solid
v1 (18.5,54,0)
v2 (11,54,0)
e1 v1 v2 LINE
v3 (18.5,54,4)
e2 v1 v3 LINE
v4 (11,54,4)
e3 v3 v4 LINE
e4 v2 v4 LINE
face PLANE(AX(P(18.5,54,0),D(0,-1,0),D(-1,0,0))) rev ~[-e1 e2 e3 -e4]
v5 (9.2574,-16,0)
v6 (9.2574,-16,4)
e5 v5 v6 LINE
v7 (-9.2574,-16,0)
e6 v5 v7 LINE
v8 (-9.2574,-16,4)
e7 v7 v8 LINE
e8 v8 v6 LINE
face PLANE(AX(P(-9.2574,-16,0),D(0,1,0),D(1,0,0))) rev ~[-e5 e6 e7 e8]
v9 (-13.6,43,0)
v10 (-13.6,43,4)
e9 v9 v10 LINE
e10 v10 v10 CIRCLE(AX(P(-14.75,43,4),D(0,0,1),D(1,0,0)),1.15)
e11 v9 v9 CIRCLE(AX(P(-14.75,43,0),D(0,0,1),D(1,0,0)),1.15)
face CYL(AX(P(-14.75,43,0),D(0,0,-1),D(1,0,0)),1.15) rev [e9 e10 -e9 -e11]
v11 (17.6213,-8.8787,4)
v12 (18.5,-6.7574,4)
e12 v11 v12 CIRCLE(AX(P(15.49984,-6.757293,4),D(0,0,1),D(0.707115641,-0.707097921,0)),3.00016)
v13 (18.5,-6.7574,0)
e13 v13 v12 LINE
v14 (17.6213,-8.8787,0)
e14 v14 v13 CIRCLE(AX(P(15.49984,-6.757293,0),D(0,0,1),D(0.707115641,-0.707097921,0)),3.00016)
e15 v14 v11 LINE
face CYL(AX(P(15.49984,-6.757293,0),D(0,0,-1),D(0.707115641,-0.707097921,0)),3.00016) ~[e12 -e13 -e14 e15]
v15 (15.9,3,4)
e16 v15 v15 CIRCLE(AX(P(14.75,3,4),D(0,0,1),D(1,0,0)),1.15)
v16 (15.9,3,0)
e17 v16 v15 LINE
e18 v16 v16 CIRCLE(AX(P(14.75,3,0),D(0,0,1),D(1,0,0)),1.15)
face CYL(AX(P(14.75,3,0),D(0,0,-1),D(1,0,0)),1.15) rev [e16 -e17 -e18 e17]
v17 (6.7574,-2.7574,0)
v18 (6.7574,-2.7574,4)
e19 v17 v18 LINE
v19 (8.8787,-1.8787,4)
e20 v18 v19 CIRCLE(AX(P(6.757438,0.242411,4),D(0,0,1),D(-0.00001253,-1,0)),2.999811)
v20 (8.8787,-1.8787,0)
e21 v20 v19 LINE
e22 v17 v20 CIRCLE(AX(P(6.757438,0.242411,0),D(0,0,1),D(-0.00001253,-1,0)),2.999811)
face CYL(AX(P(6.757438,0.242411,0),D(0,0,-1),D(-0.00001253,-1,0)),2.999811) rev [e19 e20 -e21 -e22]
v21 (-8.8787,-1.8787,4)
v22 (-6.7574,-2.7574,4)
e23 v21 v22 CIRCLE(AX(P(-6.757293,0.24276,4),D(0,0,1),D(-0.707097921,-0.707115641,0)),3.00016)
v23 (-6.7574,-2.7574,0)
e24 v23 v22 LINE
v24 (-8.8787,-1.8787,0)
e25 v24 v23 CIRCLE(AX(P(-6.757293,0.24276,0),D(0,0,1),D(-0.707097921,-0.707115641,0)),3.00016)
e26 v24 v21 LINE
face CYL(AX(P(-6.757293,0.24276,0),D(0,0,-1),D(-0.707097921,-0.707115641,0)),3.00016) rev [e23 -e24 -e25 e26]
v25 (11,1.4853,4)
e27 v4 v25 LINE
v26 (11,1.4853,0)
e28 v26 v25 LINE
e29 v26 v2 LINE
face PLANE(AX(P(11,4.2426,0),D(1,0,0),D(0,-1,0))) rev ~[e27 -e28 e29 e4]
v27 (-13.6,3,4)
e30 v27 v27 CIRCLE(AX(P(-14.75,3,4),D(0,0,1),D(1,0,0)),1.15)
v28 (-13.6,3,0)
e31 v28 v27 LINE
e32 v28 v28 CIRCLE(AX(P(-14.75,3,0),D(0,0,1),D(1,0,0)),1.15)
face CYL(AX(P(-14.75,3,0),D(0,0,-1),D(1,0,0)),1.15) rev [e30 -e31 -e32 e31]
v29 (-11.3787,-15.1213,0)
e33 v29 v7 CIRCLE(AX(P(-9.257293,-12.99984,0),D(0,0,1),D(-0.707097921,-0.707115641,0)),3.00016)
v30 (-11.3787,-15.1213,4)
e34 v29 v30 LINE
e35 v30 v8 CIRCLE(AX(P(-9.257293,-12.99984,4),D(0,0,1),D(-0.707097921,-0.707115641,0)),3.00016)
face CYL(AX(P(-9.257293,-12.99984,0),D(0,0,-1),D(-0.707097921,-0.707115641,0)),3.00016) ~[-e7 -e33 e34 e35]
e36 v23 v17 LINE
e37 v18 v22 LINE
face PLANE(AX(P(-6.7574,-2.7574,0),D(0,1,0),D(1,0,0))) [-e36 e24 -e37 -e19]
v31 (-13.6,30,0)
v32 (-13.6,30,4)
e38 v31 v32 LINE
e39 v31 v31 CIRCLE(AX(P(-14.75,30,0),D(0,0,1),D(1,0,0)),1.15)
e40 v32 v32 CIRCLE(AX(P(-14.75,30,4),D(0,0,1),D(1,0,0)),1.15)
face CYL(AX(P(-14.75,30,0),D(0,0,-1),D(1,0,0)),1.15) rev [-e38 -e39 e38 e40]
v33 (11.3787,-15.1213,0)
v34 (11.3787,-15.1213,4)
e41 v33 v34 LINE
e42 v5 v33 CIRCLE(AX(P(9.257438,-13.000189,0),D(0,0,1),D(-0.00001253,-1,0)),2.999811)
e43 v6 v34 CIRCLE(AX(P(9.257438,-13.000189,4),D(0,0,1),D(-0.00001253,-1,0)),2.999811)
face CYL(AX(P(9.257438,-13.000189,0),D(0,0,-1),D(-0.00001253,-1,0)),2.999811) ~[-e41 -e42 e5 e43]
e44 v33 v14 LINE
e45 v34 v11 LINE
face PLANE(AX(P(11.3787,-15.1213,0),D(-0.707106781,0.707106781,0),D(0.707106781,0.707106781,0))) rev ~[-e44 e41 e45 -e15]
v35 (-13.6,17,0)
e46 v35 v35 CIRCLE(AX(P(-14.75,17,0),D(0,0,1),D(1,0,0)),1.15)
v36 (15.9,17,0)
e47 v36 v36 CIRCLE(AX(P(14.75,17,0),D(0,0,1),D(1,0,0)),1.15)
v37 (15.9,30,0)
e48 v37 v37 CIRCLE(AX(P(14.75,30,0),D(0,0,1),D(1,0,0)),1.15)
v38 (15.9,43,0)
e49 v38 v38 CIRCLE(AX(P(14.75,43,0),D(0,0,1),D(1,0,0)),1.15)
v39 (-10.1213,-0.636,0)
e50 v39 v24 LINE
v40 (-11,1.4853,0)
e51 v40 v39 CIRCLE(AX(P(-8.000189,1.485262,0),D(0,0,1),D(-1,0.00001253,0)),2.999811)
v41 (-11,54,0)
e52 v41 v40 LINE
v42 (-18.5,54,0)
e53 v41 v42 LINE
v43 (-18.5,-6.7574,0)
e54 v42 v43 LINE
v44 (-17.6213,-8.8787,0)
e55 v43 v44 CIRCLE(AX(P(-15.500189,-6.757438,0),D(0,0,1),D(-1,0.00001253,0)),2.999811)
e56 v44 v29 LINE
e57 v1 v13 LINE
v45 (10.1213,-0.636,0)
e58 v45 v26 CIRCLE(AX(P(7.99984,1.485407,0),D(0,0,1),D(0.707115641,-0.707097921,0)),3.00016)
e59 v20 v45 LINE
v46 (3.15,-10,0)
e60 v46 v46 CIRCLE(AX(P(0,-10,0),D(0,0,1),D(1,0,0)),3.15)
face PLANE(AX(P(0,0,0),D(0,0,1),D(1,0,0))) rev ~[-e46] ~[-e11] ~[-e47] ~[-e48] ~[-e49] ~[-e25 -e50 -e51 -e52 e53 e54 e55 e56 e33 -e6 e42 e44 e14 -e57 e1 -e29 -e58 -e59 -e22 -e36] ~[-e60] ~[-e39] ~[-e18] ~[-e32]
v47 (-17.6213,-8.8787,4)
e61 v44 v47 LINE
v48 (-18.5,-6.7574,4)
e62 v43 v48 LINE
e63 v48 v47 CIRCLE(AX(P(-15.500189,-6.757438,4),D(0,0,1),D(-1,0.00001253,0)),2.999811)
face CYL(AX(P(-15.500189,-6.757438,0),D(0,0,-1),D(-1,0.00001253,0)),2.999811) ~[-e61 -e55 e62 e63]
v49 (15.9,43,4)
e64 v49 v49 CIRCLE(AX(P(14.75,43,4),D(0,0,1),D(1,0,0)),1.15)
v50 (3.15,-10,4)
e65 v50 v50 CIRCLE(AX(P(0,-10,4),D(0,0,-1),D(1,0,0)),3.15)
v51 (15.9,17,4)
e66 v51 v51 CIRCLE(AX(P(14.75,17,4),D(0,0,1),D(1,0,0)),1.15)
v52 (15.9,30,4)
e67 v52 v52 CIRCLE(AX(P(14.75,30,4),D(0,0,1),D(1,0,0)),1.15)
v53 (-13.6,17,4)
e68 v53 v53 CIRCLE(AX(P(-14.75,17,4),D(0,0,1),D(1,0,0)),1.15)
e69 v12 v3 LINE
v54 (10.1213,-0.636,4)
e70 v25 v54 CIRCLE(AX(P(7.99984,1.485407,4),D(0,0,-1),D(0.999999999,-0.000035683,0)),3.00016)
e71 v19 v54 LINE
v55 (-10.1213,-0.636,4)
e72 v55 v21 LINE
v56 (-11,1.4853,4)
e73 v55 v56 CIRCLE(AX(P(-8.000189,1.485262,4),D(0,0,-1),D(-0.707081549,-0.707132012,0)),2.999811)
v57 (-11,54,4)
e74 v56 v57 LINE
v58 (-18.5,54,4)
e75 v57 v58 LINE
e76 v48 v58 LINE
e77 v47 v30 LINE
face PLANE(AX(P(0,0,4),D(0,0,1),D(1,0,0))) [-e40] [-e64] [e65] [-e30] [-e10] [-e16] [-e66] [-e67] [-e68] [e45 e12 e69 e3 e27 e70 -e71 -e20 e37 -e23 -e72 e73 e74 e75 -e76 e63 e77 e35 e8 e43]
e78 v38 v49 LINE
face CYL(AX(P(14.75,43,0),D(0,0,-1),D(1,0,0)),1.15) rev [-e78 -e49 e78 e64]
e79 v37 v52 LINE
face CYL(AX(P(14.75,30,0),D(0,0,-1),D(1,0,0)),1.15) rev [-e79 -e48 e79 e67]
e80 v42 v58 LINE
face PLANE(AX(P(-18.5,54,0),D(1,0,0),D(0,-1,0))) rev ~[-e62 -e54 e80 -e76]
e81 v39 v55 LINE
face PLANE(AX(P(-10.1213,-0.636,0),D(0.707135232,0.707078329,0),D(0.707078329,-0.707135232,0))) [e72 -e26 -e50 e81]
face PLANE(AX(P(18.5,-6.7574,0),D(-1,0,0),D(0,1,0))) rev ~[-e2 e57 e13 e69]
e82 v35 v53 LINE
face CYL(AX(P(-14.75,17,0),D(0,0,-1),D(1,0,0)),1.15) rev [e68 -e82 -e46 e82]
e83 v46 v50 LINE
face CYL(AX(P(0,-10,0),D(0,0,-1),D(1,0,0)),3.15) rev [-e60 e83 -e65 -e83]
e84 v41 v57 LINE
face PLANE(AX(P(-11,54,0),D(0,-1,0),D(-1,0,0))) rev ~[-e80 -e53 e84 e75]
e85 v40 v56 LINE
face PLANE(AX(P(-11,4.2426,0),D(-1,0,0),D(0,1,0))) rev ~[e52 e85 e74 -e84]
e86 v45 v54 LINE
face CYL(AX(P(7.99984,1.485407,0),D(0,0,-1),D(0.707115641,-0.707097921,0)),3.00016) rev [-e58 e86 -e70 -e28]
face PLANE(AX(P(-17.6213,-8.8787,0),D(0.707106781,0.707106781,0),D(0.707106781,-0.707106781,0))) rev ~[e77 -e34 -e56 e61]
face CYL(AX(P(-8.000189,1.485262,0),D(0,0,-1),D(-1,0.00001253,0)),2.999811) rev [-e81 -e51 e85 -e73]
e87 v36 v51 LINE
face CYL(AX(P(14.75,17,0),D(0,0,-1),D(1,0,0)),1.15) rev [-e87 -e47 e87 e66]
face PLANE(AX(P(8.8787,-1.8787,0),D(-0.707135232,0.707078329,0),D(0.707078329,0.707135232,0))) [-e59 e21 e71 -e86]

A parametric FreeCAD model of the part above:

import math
import FreeCAD as App
import Part
import Sketcher

V = App.Vector
Q = App.Units.Quantity

doc = App.newDocument("Part")
body = doc.addObject("PartDesign::Body", "Body")

# Sketch on XY plane
sketch1 = body.newObject("Sketcher::SketchObject", "Sketch")
sketch1.AttachmentSupport = (doc.getObject("XY_Plane"), [""])
sketch1.MapMode = "FlatFace"
sketch1.addGeometry([
    Part.LineSegment(V(-18.5, 54, 0), V(-18.5, -6.8, 0)),  # 0
    Part.ArcOfCircle(Part.Circle(V(-15.5, -6.8, 0), V(0, 0, 1), 3), math.radians(180), math.radians(225)),  # 1
    Part.LineSegment(V(-17.6, -8.9, 0), V(-11.4, -15.1, 0)),  # 2
    Part.ArcOfCircle(Part.Circle(V(-9.3, -13, 0), V(0, 0, 1), 3), math.radians(-135), math.radians(-90)),  # 3
    Part.LineSegment(V(-9.3, -16, 0), V(9.3, -16, 0)),  # 4
    Part.ArcOfCircle(Part.Circle(V(9.3, -13, 0), V(0, 0, 1), 3), math.radians(-90), math.radians(-45)),  # 5
    Part.LineSegment(V(11.4, -15.1, 0), V(17.6, -8.9, 0)),  # 6
    Part.ArcOfCircle(Part.Circle(V(15.5, -6.8, 0), V(0, 0, 1), 3), math.radians(-45), math.radians(0)),  # 7
    Part.LineSegment(V(18.5, -6.8, 0), V(18.5, 54, 0)),  # 8
    Part.LineSegment(V(18.5, 54, 0), V(11, 54, 0)),  # 9
    Part.LineSegment(V(11, 54, 0), V(11, 1.5, 0)),  # 10
    Part.ArcOfCircle(Part.Circle(V(8, 1.5, 0), V(0, 0, 1), 3), math.radians(-45), math.radians(0)),  # 11
    Part.LineSegment(V(10.1, -0.6, 0), V(8.9, -1.9, 0)),  # 12
    Part.ArcOfCircle(Part.Circle(V(6.8, 0.2, 0), V(0, 0, 1), 3), math.radians(-90), math.radians(-45)),  # 13
    Part.LineSegment(V(6.8, -2.8, 0), V(-6.8, -2.8, 0)),  # 14
    Part.ArcOfCircle(Part.Circle(V(-6.8, 0.2, 0), V(0, 0, 1), 3), math.radians(-135), math.radians(-90)),  # 15
    Part.LineSegment(V(-8.9, -1.9, 0), V(-10.1, -0.6, 0)),  # 16
    Part.ArcOfCircle(Part.Circle(V(-8, 1.5, 0), V(0, 0, 1), 3), math.radians(180), math.radians(225)),  # 17
    Part.LineSegment(V(-11, 1.5, 0), V(-11, 54, 0)),  # 18
    Part.LineSegment(V(-11, 54, 0), V(-18.5, 54, 0)),  # 19
    Part.Circle(V(-14.8, 3, 0), V(0, 0, 1), 1.1),  # 20
    Part.Circle(V(-14.8, 17, 0), V(0, 0, 1), 1.1),  # 21
    Part.Circle(V(-14.8, 30, 0), V(0, 0, 1), 1.1),  # 22
    Part.Circle(V(-14.8, 43, 0), V(0, 0, 1), 1.1),  # 23
    Part.Circle(V(0, -10, 0), V(0, 0, 1), 3.1),  # 24
    Part.Circle(V(14.8, 43, 0), V(0, 0, 1), 1.1),  # 25
    Part.Circle(V(14.8, 3, 0), V(0, 0, 1), 1.1),  # 26
    Part.Circle(V(14.8, 17, 0), V(0, 0, 1), 1.1),  # 27
    Part.Circle(V(14.8, 30, 0), V(0, 0, 1), 1.1),  # 28
], False)
sketch1.addConstraint([
    Sketcher.Constraint("Tangent", 0, 2, 1, 1),
    Sketcher.Constraint("Tangent", 1, 2, 2, 1),
    Sketcher.Constraint("Tangent", 2, 2, 3, 1),
    Sketcher.Constraint("Tangent", 3, 2, 4, 1),
    Sketcher.Constraint("Tangent", 4, 2, 5, 1),
    Sketcher.Constraint("Tangent", 5, 2, 6, 1),
    Sketcher.Constraint("Tangent", 6, 2, 7, 1),
    Sketcher.Constraint("Tangent", 7, 2, 8, 1),
    Sketcher.Constraint("Coincident", 8, 2, 9, 1),
    Sketcher.Constraint("Coincident", 9, 2, 10, 1),
    Sketcher.Constraint("Tangent", 10, 2, 11, 2),
    Sketcher.Constraint("Tangent", 11, 1, 12, 1),
    Sketcher.Constraint("Tangent", 12, 2, 13, 2),
    Sketcher.Constraint("Tangent", 13, 1, 14, 1),
    Sketcher.Constraint("Tangent", 14, 2, 15, 2),
    Sketcher.Constraint("Tangent", 15, 1, 16, 1),
    Sketcher.Constraint("Tangent", 16, 2, 17, 2),
    Sketcher.Constraint("Tangent", 17, 1, 18, 1),
    Sketcher.Constraint("Coincident", 18, 2, 19, 1),
    Sketcher.Constraint("Coincident", 19, 2, 0, 1),
    Sketcher.Constraint("Vertical", 0),
    Sketcher.Constraint("Horizontal", 4),
    Sketcher.Constraint("Vertical", 8),
    Sketcher.Constraint("Horizontal", 9),
    Sketcher.Constraint("Vertical", 10),
    Sketcher.Constraint("Horizontal", 14),
    Sketcher.Constraint("Vertical", 18),
    Sketcher.Constraint("Horizontal", 19),
    Sketcher.Constraint("Equal", 1, 3),
    Sketcher.Constraint("Equal", 3, 5),
    Sketcher.Constraint("Equal", 5, 7),
    Sketcher.Constraint("Equal", 7, 11),
    Sketcher.Constraint("Equal", 11, 13),
    Sketcher.Constraint("Equal", 13, 15),
    Sketcher.Constraint("Equal", 15, 17),
    Sketcher.Constraint("Equal", 20, 21),
    Sketcher.Constraint("Equal", 21, 22),
    Sketcher.Constraint("Equal", 22, 23),
    Sketcher.Constraint("Equal", 23, 25),
    Sketcher.Constraint("Equal", 25, 26),
    Sketcher.Constraint("Equal", 26, 27),
    Sketcher.Constraint("Equal", 27, 28),
    Sketcher.Constraint("Symmetric", 1, 3, 7, 3, -2),
    Sketcher.Constraint("Symmetric", 11, 3, 17, 3, -2),
    Sketcher.Constraint("Symmetric", 23, 3, 25, 3, -2),
    Sketcher.Constraint("Symmetric", 20, 3, 26, 3, -2),
    Sketcher.Constraint("Symmetric", 21, 3, 27, 3, -2),
    Sketcher.Constraint("Symmetric", 22, 3, 28, 3, -2),
    Sketcher.Constraint("PointOnObject", 24, 3, -2),
    Sketcher.Constraint("Perpendicular", 2, 6),
    Sketcher.Constraint("Parallel", 6, 12),
    Sketcher.Constraint("Perpendicular", 12, 16),
    Sketcher.Constraint("Horizontal", 2, 2, 5, 2),
    Sketcher.Constraint("Horizontal", 9, 2, 18, 2),
    Sketcher.Constraint("Vertical", 20, 3, 21, 3),
    Sketcher.Constraint("Vertical", 21, 3, 22, 3),
    Sketcher.Constraint("Vertical", 22, 3, 23, 3),
    Sketcher.Constraint("Radius", 1, Q("3 mm")),
    Sketcher.Constraint("Diameter", 20, Q("2.3 mm")),
    Sketcher.Constraint("Diameter", 24, Q("6.3 mm")),
    Sketcher.Constraint("DistanceX", 9, 2, 9, 1, Q("7.5 mm")),
    Sketcher.Constraint("DistanceY", 3, 3, -1, 1, Q("13 mm")),
    Sketcher.Constraint("DistanceX", -1, 1, 11, 3, Q("8 mm")),
    Sketcher.Constraint("DistanceY", -1, 1, 20, 3, Q("3 mm")),
    Sketcher.Constraint("DistanceY", -1, 1, 8, 2, Q("54 mm")),
    Sketcher.Constraint("DistanceY", 7, 3, 13, 3, Q("7 mm")),
    Sketcher.Constraint("DistanceY", 20, 3, 21, 3, Q("14 mm")),
    Sketcher.Constraint("DistanceY", 21, 3, 22, 3, Q("13 mm")),
    Sketcher.Constraint("DistanceY", 22, 3, 23, 3, Q("13 mm")),
    Sketcher.Constraint("DistanceY", 3, 3, 24, 3, Q("3 mm")),
    Sketcher.Constraint("DistanceX", 0, 2, 20, 3, Q("3.75 mm")),
    Sketcher.Constraint("DistanceY", 13, 1, -1, 1, Q("2.7574 mm")),
    Sketcher.Constraint("DistanceX", 13, 3, 5, 3, Q("2.5 mm")),
])
pad1 = body.newObject("PartDesign::Pad", "Pad")
pad1.Profile = sketch1
pad1.Length = 4

doc.recompute()
